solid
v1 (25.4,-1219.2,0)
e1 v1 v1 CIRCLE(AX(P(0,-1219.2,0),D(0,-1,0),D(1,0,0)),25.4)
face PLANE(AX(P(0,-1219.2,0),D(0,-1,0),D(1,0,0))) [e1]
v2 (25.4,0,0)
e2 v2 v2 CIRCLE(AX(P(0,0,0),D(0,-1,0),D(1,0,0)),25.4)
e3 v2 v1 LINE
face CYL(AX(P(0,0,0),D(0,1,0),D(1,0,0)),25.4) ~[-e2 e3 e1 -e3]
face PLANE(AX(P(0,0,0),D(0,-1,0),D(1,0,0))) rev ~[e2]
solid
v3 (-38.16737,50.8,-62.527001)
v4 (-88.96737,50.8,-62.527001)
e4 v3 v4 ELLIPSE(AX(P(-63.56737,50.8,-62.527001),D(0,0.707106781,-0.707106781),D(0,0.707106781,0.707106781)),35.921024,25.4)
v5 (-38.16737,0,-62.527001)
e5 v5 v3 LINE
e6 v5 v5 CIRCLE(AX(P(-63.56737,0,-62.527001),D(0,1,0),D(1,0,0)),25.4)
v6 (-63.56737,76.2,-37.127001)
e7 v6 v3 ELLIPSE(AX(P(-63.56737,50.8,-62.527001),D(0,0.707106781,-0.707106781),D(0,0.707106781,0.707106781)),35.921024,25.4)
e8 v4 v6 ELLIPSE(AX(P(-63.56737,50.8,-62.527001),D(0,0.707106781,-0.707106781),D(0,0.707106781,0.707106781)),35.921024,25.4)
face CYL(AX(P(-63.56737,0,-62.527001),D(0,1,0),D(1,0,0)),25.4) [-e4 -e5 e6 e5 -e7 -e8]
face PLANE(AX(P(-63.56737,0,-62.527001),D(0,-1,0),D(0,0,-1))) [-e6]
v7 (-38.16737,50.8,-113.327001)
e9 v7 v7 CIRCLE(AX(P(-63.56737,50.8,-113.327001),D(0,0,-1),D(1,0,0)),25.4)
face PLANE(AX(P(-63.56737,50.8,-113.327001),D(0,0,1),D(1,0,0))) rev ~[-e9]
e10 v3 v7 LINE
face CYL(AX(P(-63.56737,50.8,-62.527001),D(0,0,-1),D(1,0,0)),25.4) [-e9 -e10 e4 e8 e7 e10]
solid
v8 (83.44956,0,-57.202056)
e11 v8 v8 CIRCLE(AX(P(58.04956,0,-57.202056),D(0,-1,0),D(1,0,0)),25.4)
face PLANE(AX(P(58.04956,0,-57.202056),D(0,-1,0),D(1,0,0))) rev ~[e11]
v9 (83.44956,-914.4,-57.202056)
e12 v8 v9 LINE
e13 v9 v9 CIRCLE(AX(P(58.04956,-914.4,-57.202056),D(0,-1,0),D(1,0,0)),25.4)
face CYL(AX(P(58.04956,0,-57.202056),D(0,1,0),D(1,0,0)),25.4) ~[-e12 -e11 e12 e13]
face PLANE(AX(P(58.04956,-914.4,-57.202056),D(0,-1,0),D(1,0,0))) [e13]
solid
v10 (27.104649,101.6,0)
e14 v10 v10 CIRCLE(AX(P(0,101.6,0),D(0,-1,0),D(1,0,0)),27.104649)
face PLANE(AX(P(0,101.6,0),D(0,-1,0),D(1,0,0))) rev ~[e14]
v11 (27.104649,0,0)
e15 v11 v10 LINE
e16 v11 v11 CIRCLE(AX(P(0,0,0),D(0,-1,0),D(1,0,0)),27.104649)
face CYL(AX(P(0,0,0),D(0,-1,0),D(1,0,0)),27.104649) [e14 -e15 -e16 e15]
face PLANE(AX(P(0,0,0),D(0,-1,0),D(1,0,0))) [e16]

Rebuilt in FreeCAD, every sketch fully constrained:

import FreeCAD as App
import Part
import Sketcher
from FreeCAD import Vector
Q = App.Units.Quantity

doc = App.newDocument("Part")
body = doc.addObject("PartDesign::Body", "Body")

# Sketch on XZ plane
sketch1 = body.newObject("Sketcher::SketchObject", "Sketch")
sketch1.AttachmentSupport = (doc.getObject("XZ_Plane"), [""])
sketch1.MapMode = "FlatFace"
sketch1.addGeometry(Part.Circle(Vector(0, 0, 0), Vector(0, 0, 1), 25), False)
sketch1.addConstraint([
    Sketcher.Constraint("Coincident", 0, 3, -1, 1),
    Sketcher.Constraint("Diameter", 0, Q("2 in")),
])
pad1 = body.newObject("PartDesign::Pad", "Pad")
pad1.Profile = sketch1
pad1.Length = Q("48 in")
body2 = doc.addObject("PartDesign::Body", "Body001")

# Sketch on XZ plane
sketch2 = body2.newObject("Sketcher::SketchObject", "Sketch001")
sketch2.AttachmentSupport = (doc.getObject("XZ_Plane001"), [""])
sketch2.MapMode = "FlatFace"
sketch2.addGeometry(Part.Circle(Vector(0, 0, 0), Vector(0, 0, 1), 27), False)
sketch2.addConstraint([
    Sketcher.Constraint("Coincident", 0, 3, -1, 1),
    Sketcher.Constraint("Diameter", 0, 54.209299),
])
pad2 = body2.newObject("PartDesign::Pad", "Pad001")
pad2.Profile = sketch2
pad2.Length = Q("4 in")
pad2.Reversed = True
body3 = doc.addObject("PartDesign::Body", "Body002")

# Sketch on XZ plane
sketch3 = body3.newObject("Sketcher::SketchObject", "Sketch002")
sketch3.AttachmentSupport = (doc.getObject("XZ_Plane002"), [""])
sketch3.MapMode = "FlatFace"
sketch3.addGeometry(Part.Circle(Vector(-64, -63, 0), Vector(0, 0, 1), 25), False)
sketch3.addConstraint([
    Sketcher.Constraint("Diameter", 0, Q("2 in")),
    Sketcher.Constraint("DistanceY", 0, 3, -1, 1, 62.527001),
    Sketcher.Constraint("DistanceX", 0, 3, -1, 1, 63.56737),
])

# Sketch on YZ plane
sketch4 = body3.newObject("Sketcher::SketchObject", "Sketch003")
sketch4.AttachmentSupport = (doc.getObject("YZ_Plane002"), [""])
sketch4.MapMode = "FlatFace"
sketch4.addGeometry([
    Part.LineSegment(Vector(0, -63, 0), Vector(51, -63, 0)),
    Part.LineSegment(Vector(51, -63, 0), Vector(51, -113, 0)),
], False)
sketch4.addConstraint([
    Sketcher.Constraint("Coincident", 0, 2, 1, 1),
    Sketcher.Constraint("Horizontal", 0),
    Sketcher.Constraint("Vertical", 1),
    Sketcher.Constraint("PointOnObject", 0, 1, -2),
    Sketcher.Constraint("Equal", 0, 1),
    Sketcher.Constraint("DistanceX", 0, 1, 0, 2, Q("2 in")),
    Sketcher.Constraint("DistanceY", 0, 1, -1, 1, 62.527001),
])
doc.recompute()

additivepipe = body3.newObject("PartDesign::AdditivePipe", "AdditivePipe")
additivepipe.Profile = sketch3
additivepipe.Spine = (sketch4, ["Edge1", "Edge2"])
additivepipe.Transition = "Right corner"
body4 = doc.addObject("PartDesign::Body", "Body003")

# Sketch on XZ plane
sketch5 = body4.newObject("Sketcher::SketchObject", "Sketch004")
sketch5.AttachmentSupport = (doc.getObject("XZ_Plane003"), [""])
sketch5.MapMode = "FlatFace"
sketch5.addGeometry(Part.Circle(Vector(58, -57, 0), Vector(0, 0, 1), 25), False)
sketch5.addConstraint([
    Sketcher.Constraint("Diameter", 0, Q("2 in")),
    Sketcher.Constraint("DistanceX", -1, 1, 0, 3, 58.04956),
    Sketcher.Constraint("DistanceY", 0, 3, -1, 1, 57.202056),
])
pad3 = body4.newObject("PartDesign::Pad", "Pad002")
pad3.Profile = sketch5
pad3.Length = Q("36 in")

doc.recompute()
